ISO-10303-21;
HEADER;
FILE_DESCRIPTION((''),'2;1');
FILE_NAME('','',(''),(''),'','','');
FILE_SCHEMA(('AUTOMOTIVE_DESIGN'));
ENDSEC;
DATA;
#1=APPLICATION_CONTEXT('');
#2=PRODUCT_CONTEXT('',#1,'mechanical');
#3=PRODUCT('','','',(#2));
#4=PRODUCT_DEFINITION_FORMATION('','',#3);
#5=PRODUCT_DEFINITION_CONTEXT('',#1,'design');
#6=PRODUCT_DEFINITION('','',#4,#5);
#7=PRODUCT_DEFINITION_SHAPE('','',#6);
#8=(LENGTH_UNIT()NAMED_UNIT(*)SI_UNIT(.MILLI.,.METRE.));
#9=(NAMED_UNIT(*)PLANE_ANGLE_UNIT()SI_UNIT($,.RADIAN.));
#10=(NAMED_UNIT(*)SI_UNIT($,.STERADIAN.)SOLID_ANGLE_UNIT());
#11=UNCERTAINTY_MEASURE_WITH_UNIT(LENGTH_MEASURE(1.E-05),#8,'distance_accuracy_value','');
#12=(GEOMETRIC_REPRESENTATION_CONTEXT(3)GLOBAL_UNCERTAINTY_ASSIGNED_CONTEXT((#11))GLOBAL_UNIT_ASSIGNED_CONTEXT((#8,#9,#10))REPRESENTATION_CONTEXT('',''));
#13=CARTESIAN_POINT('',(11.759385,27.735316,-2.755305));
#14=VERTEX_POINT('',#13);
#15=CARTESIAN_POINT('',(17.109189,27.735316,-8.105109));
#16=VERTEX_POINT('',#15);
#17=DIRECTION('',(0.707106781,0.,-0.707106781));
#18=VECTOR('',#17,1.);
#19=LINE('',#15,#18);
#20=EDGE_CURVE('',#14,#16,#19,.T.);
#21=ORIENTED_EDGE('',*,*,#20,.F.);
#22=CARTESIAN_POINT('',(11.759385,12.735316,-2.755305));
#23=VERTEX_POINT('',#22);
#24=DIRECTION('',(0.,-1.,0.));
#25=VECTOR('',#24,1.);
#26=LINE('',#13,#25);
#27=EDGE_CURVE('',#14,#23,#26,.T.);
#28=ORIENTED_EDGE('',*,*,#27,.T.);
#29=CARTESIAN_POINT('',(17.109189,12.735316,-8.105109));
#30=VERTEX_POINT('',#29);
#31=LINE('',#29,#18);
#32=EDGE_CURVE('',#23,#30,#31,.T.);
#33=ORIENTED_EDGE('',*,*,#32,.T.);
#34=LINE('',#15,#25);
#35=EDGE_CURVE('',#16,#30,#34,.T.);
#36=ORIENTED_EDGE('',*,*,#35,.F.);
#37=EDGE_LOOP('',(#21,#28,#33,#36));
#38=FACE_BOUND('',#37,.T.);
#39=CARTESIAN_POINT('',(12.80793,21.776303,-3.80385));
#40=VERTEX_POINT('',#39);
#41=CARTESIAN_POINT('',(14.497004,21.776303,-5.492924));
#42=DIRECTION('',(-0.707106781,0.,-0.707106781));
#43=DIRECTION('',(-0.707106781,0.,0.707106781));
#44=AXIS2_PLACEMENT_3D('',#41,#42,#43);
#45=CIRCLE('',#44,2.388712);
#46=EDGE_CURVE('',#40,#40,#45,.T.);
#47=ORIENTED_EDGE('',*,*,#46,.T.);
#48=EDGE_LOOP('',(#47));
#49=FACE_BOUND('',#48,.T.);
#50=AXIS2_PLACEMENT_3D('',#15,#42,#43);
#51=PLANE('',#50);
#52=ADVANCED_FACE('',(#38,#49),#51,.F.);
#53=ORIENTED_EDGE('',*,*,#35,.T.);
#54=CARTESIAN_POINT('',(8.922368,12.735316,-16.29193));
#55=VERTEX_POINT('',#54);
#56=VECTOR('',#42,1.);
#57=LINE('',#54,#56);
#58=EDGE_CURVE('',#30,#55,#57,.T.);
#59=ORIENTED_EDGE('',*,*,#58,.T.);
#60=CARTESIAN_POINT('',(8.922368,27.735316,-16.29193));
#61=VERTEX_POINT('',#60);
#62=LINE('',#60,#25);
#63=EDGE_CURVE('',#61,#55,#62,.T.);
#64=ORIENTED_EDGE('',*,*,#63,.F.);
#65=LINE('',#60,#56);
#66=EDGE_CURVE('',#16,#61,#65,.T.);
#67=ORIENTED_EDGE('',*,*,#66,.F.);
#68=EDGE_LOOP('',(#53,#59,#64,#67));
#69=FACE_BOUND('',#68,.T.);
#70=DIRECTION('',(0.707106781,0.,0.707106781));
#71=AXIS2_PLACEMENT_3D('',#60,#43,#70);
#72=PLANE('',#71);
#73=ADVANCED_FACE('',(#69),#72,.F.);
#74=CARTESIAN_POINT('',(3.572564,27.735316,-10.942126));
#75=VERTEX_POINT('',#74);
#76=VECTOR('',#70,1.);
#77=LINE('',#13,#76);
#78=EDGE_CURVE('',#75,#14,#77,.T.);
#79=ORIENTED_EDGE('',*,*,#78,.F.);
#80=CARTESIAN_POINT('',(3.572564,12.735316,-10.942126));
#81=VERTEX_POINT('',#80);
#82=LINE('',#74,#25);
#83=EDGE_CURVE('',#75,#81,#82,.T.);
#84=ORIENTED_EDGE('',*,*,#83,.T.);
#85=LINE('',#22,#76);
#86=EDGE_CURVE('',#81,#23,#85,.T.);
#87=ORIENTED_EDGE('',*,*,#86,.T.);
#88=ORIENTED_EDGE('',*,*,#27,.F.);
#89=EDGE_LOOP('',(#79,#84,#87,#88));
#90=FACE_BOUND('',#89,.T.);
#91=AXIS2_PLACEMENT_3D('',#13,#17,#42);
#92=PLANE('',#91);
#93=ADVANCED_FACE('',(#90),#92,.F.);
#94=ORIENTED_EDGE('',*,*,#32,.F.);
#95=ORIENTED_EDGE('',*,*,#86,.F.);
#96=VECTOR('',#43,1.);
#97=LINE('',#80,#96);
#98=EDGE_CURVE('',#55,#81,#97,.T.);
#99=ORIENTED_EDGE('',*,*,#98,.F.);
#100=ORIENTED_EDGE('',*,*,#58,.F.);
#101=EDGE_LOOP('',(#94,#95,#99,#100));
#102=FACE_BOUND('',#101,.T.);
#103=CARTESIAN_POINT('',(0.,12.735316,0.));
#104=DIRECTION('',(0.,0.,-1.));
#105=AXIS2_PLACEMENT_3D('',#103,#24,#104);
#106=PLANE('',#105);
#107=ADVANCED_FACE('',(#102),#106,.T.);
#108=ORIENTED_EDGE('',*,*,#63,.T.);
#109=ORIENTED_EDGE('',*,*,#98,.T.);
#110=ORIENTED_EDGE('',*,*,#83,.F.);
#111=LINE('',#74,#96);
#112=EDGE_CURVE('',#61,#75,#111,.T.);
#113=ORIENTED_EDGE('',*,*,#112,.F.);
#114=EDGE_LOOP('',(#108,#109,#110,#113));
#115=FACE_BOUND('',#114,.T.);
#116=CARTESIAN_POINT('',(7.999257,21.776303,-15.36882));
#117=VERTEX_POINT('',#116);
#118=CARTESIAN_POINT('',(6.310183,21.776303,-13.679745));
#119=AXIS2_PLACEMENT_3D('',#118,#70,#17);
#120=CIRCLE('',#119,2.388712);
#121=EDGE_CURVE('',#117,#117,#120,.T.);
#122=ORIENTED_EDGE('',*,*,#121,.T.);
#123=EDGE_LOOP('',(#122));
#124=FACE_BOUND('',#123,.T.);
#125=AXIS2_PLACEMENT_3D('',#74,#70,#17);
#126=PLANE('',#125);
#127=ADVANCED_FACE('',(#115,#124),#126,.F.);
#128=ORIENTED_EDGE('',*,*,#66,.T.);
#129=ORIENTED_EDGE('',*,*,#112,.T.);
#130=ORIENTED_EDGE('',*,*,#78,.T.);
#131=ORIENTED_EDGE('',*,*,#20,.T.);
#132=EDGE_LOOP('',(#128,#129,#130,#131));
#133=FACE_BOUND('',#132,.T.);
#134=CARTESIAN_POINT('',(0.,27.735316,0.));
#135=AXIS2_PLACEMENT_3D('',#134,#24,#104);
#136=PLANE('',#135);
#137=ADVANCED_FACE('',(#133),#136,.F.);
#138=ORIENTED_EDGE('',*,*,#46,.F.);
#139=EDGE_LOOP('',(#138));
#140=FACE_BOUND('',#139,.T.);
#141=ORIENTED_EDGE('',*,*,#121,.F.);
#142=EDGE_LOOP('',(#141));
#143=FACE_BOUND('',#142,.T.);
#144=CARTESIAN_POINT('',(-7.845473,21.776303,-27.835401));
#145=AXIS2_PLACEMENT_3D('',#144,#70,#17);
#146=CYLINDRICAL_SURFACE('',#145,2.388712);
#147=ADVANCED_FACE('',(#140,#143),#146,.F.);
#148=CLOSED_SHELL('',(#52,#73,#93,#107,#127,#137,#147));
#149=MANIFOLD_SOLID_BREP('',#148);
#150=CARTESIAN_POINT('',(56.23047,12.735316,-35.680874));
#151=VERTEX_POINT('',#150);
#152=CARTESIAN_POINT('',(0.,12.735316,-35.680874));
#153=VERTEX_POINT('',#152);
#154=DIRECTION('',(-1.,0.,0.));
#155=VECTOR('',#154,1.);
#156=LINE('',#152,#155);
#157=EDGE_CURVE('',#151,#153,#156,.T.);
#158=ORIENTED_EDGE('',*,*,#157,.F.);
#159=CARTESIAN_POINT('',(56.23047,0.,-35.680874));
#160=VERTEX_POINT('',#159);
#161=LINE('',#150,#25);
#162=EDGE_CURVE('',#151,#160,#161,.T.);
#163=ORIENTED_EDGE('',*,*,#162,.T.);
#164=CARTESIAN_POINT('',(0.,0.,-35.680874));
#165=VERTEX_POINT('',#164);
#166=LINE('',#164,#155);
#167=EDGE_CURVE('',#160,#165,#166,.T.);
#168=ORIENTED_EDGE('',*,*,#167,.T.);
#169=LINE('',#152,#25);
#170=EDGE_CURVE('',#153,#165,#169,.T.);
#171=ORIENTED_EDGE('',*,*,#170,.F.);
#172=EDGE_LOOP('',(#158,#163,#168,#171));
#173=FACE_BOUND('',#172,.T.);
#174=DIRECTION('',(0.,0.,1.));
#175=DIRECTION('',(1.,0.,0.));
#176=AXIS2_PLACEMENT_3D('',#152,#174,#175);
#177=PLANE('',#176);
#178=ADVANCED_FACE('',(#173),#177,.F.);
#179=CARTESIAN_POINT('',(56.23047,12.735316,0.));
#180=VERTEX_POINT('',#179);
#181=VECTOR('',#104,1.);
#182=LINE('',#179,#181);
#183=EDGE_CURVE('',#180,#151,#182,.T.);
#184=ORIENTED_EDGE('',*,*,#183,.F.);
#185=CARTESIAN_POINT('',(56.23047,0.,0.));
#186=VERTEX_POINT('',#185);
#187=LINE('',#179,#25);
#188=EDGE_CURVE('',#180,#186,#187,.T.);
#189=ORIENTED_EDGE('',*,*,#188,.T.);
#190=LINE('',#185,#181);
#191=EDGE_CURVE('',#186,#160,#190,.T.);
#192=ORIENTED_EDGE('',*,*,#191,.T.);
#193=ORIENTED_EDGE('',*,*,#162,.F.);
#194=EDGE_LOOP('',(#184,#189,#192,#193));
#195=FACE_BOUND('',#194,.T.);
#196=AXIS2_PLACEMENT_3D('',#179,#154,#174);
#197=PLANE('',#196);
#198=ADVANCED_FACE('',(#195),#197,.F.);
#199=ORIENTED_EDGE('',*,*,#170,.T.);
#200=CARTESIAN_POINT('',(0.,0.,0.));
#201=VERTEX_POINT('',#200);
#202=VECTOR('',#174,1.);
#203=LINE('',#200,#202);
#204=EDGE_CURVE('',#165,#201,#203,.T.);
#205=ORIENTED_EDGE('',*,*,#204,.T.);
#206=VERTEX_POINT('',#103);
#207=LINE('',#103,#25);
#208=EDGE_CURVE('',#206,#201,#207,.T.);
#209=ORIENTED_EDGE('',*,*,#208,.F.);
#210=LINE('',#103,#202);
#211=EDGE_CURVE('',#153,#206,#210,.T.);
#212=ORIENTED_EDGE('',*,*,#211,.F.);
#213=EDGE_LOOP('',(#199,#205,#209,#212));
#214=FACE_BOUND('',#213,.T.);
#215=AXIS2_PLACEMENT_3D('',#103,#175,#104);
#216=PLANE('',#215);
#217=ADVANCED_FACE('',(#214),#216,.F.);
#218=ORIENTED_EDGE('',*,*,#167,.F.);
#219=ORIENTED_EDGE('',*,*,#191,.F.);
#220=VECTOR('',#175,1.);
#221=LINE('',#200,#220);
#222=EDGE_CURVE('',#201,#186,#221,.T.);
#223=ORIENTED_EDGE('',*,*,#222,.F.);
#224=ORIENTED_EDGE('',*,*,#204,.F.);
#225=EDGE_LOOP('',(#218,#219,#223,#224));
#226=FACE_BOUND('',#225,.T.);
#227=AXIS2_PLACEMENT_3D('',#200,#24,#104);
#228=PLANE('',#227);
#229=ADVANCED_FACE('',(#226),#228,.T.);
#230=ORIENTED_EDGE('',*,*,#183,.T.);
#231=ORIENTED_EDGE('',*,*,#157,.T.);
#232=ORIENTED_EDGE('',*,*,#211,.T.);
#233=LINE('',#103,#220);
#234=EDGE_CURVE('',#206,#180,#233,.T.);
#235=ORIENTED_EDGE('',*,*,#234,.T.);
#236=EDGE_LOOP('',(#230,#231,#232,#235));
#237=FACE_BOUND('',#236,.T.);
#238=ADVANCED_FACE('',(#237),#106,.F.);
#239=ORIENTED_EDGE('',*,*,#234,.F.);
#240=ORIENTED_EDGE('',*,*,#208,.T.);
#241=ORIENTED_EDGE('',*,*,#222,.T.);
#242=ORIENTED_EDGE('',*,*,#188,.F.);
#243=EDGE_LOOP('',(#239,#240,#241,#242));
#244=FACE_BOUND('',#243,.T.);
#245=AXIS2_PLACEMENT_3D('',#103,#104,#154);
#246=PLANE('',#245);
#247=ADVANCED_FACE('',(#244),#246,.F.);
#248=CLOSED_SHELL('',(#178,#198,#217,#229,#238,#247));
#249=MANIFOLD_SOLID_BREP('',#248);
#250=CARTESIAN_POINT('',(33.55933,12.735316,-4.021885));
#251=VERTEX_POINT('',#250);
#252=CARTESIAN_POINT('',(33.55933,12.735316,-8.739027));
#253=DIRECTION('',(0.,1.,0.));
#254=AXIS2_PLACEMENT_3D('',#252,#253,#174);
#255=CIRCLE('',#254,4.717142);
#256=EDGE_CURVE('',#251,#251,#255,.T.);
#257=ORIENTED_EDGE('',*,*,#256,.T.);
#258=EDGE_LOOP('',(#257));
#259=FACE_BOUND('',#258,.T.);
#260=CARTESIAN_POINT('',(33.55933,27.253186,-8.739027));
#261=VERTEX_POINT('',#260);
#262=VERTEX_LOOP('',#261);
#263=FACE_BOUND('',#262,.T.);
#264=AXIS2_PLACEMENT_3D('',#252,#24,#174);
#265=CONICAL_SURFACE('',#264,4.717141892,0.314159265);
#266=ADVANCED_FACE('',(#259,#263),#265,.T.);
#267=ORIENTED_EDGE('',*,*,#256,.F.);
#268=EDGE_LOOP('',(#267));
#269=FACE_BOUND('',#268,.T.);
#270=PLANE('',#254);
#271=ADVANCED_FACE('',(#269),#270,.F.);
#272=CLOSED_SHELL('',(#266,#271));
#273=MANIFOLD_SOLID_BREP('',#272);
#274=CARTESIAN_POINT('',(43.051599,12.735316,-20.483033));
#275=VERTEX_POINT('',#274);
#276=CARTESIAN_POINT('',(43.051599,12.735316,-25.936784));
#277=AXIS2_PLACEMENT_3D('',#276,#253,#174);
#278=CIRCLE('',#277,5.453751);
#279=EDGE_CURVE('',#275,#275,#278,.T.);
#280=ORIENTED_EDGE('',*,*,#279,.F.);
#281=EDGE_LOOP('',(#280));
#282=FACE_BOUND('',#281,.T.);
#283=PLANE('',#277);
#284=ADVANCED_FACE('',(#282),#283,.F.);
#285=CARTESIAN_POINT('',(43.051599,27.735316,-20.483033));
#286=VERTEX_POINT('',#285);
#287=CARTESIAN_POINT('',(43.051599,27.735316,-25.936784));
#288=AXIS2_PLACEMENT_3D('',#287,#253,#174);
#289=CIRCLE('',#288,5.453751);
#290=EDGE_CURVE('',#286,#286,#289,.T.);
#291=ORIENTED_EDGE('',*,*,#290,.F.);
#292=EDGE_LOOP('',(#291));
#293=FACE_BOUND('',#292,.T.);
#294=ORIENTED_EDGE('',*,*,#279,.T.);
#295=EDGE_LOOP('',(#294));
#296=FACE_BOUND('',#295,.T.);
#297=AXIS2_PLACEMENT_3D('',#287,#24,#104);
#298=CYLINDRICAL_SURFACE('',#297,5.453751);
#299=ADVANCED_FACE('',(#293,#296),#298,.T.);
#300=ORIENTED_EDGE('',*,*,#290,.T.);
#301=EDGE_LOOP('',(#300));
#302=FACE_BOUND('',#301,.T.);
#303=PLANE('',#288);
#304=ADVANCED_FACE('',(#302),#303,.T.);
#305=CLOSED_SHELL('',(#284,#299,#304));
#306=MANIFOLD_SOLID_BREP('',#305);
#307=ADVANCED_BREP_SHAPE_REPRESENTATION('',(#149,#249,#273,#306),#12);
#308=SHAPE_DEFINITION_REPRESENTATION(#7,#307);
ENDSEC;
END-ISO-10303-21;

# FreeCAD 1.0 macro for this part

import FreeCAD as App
import Part
import Sketcher
Q = App.Units.Quantity


def add_polygon(sketch, points):
    """Adds a closed chain of lines whose ends are joined by coincident constraints."""
    first, n = sketch.GeometryCount, len(points)
    for a, b in zip(points, points[1:] + points[:1]):
        sketch.addGeometry(Part.LineSegment(App.Vector(*a, 0), App.Vector(*b, 0)), False)
    for i in range(n):
        sketch.addConstraint(Sketcher.Constraint("Coincident", first + i, 2, first + (i + 1) % n, 1))

doc = App.newDocument("Part")
params = doc.addObject("Spreadsheet::Sheet", "Params")
for row, (alias, value) in enumerate([
    ("pad1_length", "12.735316 mm"),
    ("pad2_length", "15 mm"),
    ("pad3_length", "15 mm"),
    ("revolution_angle", "360 deg"),
], start=1):
    params.set(f"A{row}", alias)
    params.set(f"B{row}", "=" + value)
    params.setAlias(f"B{row}", alias)

body = doc.addObject("PartDesign::Body", "Body")

# Sketch on XZ plane
sketch1 = body.newObject("Sketcher::SketchObject", "Sketch")
sketch1.AttachmentSupport = (doc.getObject("XZ_Plane"), [""])
sketch1.MapMode = "FlatFace"
add_polygon(sketch1, [(0, -35.680874), (0, 0), (56.23047, 0), (56.23047, -35.680874)])  # lines 0-3
sketch1.addConstraint([
    Sketcher.Constraint("Vertical", 0),
    Sketcher.Constraint("Horizontal", 1),
    Sketcher.Constraint("Vertical", 2),
    Sketcher.Constraint("Horizontal", 3),
    Sketcher.Constraint("Coincident", 0, 2, -1, 1),
    Sketcher.Constraint("DistanceX", 1, 1, 1, 2, 56.23047),
    Sketcher.Constraint("DistanceY", 0, 1, 0, 2, 35.680874),
])
pad1 = body.newObject("PartDesign::Pad", "Pad")
pad1.Profile = sketch1
pad1.setExpression("Length", "Params.pad1_length")
pad1.Reversed = True
body2 = doc.addObject("PartDesign::Body", "Body001")

# Sketch on XZ plane
sketch2 = body2.newObject("Sketcher::SketchObject", "Sketch001")
sketch2.AttachmentSupport = (doc.getObject("XZ_Plane001"), [""])
sketch2.MapMode = "FlatFace"
sketch2.AttachmentOffset = App.Placement(App.Vector(0, 0, -12.735316), App.Rotation())
add_polygon(sketch2, [(8.922368, -16.29193), (3.572564, -10.942126), (11.759385, -2.755305), (17.109189, -8.105109)])  # lines 0-3
sketch2.addConstraint([
    Sketcher.Constraint("Perpendicular", 0, 1),
    Sketcher.Constraint("Perpendicular", 1, 2),
    Sketcher.Constraint("Perpendicular", 2, 3),
    Sketcher.Constraint("Angle", 0, Q("135 deg")),
    Sketcher.Constraint("DistanceX", -1, 1, 2, 2, 17.109189),
    Sketcher.Constraint("DistanceY", 2, 2, -1, 1, 8.105109),
    Sketcher.Constraint("DistanceX", -1, 1, 3, 2, 8.922368),
    Sketcher.Constraint("Distance", 0, 7.565765),
])
pad2 = body2.newObject("PartDesign::Pad", "Pad001")
pad2.Profile = sketch2
pad2.setExpression("Length", "Params.pad2_length")
pad2.Reversed = True

# Sketch on an angled plane
sketch3 = body2.newObject("Sketcher::SketchObject", "Sketch002")
sketch3.Placement = App.Placement(App.Vector(4.50204, 0, 4.50204), App.Rotation(App.Vector(0.707106781, 0, -0.707106781), App.Vector(0, 0.999999999, 0), App.Vector(0.707106781, 0, 0.707106781), "ZXY"))
sketch3.addGeometry(Part.Circle(App.Vector(14.135014, 21.776303, 0), App.Vector(0, 0, 1), 2.388712), False)
sketch3.addConstraint([
    Sketcher.Constraint("Diameter", 0, 4.777424),
    Sketcher.Constraint("DistanceX", -1, 1, 0, 3, 14.135014),
    Sketcher.Constraint("DistanceY", -1, 1, 0, 3, 21.776303),
])
pocket1 = body2.newObject("PartDesign::Pocket", "Pocket")
pocket1.Profile = sketch3
pocket1.Type = "ThroughAll"
pocket1.Midplane = True
body3 = doc.addObject("PartDesign::Body", "Body002")

# Sketch on XZ plane
sketch4 = body3.newObject("Sketcher::SketchObject", "Sketch003")
sketch4.AttachmentSupport = (doc.getObject("XZ_Plane002"), [""])
sketch4.MapMode = "FlatFace"
sketch4.AttachmentOffset = App.Placement(App.Vector(0, 0, -12.735316), App.Rotation())
sketch4.addGeometry(Part.Circle(App.Vector(43.051599, -25.936784, 0), App.Vector(0, 0, 1), 5.453751), False)
sketch4.addConstraint([
    Sketcher.Constraint("Diameter", 0, 10.907501),
    Sketcher.Constraint("DistanceX", -1, 1, 0, 3, 43.051599),
    Sketcher.Constraint("DistanceY", 0, 3, -1, 1, 25.936784),
])
pad3 = body3.newObject("PartDesign::Pad", "Pad002")
pad3.Profile = sketch4
pad3.setExpression("Length", "Params.pad3_length")
pad3.Reversed = True
body4 = doc.addObject("PartDesign::Body", "Body003")

# Sketch on YZ plane
sketch5 = body4.newObject("Sketcher::SketchObject", "Sketch004")
sketch5.AttachmentSupport = (doc.getObject("YZ_Plane003"), [""])
sketch5.MapMode = "FlatFace"
sketch5.AttachmentOffset = App.Placement(App.Vector(0, 0, 33.55933), App.Rotation())
add_polygon(sketch5, [(12.735316, -8.739027), (12.735316, -13.456169), (27.253186, -8.739027)])  # lines 0-2
sketch5.addGeometry(Part.LineSegment(App.Vector(12.735316, -8.739027, 0), App.Vector(27.253186, -8.739027, 0)), True)  # axis
sketch5.addConstraint([
    Sketcher.Constraint("Vertical", 0),
    Sketcher.Constraint("Horizontal", 2),
    Sketcher.Constraint("Horizontal", 3),
    Sketcher.Constraint("Coincident", 3, 1, 2, 2),
    Sketcher.Constraint("Equal", 2, 3),
    Sketcher.Constraint("Angle", 1, Q("18 deg")),
    Sketcher.Constraint("DistanceX", 2, 2, 2, 1, 14.51787),
    Sketcher.Constraint("DistanceY", 0, 2, -1, 1, 13.456169),
    Sketcher.Constraint("DistanceX", -1, 1, 0, 2, 12.735316),
])
revolution = body4.newObject("PartDesign::Revolution", "Revolution")
revolution.Profile = sketch5
revolution.ReferenceAxis = (sketch5, ["Axis0"])
revolution.setExpression("Angle", "Params.revolution_angle")

doc.recompute()
